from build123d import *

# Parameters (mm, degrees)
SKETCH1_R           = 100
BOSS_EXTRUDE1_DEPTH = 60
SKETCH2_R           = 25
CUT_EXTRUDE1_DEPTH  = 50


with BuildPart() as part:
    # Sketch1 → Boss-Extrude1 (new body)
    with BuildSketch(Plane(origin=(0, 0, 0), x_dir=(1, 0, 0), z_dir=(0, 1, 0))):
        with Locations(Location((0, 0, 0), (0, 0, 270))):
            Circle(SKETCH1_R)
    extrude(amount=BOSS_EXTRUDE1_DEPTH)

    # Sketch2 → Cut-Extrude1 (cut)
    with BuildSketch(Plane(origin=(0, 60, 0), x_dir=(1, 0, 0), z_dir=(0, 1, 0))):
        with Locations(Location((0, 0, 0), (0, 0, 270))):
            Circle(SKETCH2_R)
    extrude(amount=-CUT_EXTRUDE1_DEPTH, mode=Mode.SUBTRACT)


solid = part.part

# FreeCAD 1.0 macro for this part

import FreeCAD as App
import Part
import Sketcher

doc = App.newDocument("Part")
body = doc.addObject("PartDesign::Body", "Body")

# Sketch on XZ plane
sketch1 = doc.addObject("Sketcher::SketchObject", "Sketch")
body.addObject(sketch1)
sketch1.AttachmentSupport = (doc.XZ_Plane, [""])
sketch1.MapMode = "FlatFace"
sketch1.addGeometry(Part.Circle(App.Vector(0, 0, 0), App.Vector(0, 0, 1), 100), False)
sketch1.addConstraint(Sketcher.Constraint("Coincident", 0, 3, -1, 1))
sketch1.addConstraint(Sketcher.Constraint("Diameter", 0, 200.0))
pad1 = doc.addObject("PartDesign::Pad", "Pad")
body.addObject(pad1)
pad1.Profile = sketch1
pad1.Length = 60
pad1.Reversed = True

# Sketch on XZ plane
sketch2 = doc.addObject("Sketcher::SketchObject", "Sketch001")
body.addObject(sketch2)
sketch2.AttachmentSupport = (doc.XZ_Plane, [""])
sketch2.MapMode = "FlatFace"
sketch2.AttachmentOffset = App.Placement(App.Vector(0, 0, -60), App.Rotation())
sketch2.addGeometry(Part.Circle(App.Vector(0, 0, 0), App.Vector(0, 0, 1), 25), False)
sketch2.addConstraint(Sketcher.Constraint("Coincident", 0, 3, -1, 1))
sketch2.addConstraint(Sketcher.Constraint("Diameter", 0, 50.0))
pocket1 = doc.addObject("PartDesign::Pocket", "Pocket")
body.addObject(pocket1)
pocket1.Profile = sketch2
pocket1.Length = 50
pocket1.Reversed = True

doc.recompute()
